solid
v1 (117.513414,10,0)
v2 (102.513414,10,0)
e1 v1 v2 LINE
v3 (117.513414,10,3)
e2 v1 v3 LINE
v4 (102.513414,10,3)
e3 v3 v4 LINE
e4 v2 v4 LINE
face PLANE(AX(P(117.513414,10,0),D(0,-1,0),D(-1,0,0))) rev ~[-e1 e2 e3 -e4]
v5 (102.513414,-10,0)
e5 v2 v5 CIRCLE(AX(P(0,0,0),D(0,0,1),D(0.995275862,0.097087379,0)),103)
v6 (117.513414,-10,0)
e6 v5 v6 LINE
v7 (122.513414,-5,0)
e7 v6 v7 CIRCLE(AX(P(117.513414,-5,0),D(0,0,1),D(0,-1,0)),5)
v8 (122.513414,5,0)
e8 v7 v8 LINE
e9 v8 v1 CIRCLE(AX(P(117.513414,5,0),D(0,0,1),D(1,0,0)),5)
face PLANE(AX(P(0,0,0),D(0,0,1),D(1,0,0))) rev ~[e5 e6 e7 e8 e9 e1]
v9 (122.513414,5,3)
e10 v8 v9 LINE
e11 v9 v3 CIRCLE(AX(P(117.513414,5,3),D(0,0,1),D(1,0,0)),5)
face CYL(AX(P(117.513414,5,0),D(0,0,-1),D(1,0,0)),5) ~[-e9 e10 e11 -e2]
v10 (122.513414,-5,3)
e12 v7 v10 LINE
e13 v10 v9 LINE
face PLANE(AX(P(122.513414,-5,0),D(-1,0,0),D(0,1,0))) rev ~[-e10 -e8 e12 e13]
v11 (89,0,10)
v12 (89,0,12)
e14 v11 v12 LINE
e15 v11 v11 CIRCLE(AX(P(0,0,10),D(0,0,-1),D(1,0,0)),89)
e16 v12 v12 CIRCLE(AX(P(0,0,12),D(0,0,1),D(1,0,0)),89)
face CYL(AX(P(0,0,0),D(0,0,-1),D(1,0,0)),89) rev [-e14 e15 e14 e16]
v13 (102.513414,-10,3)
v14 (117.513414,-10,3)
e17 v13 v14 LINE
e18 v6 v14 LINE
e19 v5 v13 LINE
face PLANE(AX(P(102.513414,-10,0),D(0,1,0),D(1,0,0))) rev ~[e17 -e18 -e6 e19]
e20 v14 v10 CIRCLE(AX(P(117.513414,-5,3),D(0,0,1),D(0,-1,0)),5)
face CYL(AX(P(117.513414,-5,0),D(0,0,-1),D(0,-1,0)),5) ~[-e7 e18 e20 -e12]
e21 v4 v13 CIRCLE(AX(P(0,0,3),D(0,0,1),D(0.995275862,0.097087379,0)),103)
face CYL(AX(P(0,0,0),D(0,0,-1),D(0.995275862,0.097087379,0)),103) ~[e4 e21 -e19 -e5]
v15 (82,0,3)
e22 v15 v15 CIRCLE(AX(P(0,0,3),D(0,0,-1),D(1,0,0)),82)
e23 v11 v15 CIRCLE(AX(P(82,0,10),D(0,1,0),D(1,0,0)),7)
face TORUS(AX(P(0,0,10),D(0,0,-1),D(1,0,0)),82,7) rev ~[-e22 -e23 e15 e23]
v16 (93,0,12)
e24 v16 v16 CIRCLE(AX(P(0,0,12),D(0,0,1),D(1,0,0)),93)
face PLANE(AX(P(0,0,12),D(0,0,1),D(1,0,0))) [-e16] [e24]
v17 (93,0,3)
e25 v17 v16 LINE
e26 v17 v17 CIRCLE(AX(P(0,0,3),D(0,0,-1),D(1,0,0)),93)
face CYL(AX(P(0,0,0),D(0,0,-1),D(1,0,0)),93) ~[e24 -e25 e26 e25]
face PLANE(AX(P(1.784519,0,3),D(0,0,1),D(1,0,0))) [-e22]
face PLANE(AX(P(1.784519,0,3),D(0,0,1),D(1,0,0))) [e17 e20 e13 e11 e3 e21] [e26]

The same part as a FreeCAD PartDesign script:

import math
import FreeCAD as App
import Part
import Sketcher


def edges_at(feature, points):
    """Names of the edges that pass closest to the given points."""
    edges = feature.Shape.Edges
    near = lambda p: min(range(len(edges)), key=lambda i: edges[i].distToShape(Part.Vertex(*p))[0])
    return sorted({f"Edge{near(p) + 1}" for p in points})

doc = App.newDocument("Part")
body = doc.addObject("PartDesign::Body", "Body")

sketch1 = doc.addObject("Sketcher::SketchObject", "Sketch")
body.addObject(sketch1)
sketch1.AttachmentSupport = (doc.XY_Plane, [""])
sketch1.MapMode = "FlatFace"
sketch1.addGeometry(Part.ArcOfCircle(Part.Circle(App.Vector(0, 0, 0), App.Vector(0, 0, 1), 103), math.radians(6), math.radians(354)), False)
sketch1.addGeometry(Part.LineSegment(App.Vector(103, -10, 0), App.Vector(118, -10, 0)), False)
sketch1.addGeometry(Part.ArcOfCircle(Part.Circle(App.Vector(118, -5, 0), App.Vector(0, 0, 1), 5), math.radians(-90), math.radians(0)), False)
sketch1.addGeometry(Part.LineSegment(App.Vector(123, -5, 0), App.Vector(123, 5, 0)), False)
sketch1.addGeometry(Part.ArcOfCircle(Part.Circle(App.Vector(118, 5, 0), App.Vector(0, 0, 1), 5), math.radians(0), math.radians(90)), False)
sketch1.addGeometry(Part.LineSegment(App.Vector(118, 10, 0), App.Vector(103, 10, 0)), False)
sketch1.addConstraint(Sketcher.Constraint("Coincident", 0, 2, 1, 1))
sketch1.addConstraint(Sketcher.Constraint("Tangent", 1, 2, 2, 1))
sketch1.addConstraint(Sketcher.Constraint("Tangent", 2, 2, 3, 1))
sketch1.addConstraint(Sketcher.Constraint("Tangent", 3, 2, 4, 1))
sketch1.addConstraint(Sketcher.Constraint("Tangent", 4, 2, 5, 1))
sketch1.addConstraint(Sketcher.Constraint("Coincident", 5, 2, 0, 1))
sketch1.addConstraint(Sketcher.Constraint("Horizontal", 1))
sketch1.addConstraint(Sketcher.Constraint("Vertical", 3))
sketch1.addConstraint(Sketcher.Constraint("Horizontal", 5))
sketch1.addConstraint(Sketcher.Constraint("Coincident", 0, 3, -1, 1))
sketch1.addConstraint(Sketcher.Constraint("Equal", 2, 4))
sketch1.addConstraint(Sketcher.Constraint("Vertical", 0, 2, 5, 2))
sketch1.addConstraint(Sketcher.Constraint("Radius", 0, 103.0))
sketch1.addConstraint(Sketcher.Constraint("Radius", 2, 5.0))
sketch1.addConstraint(Sketcher.Constraint("DistanceX", 1, 1, 1, 2, 15.0))
sketch1.addConstraint(Sketcher.Constraint("DistanceY", 3, 1, 3, 2, 10.0))
pad1 = doc.addObject("PartDesign::Pad", "Pad")
body.addObject(pad1)
pad1.Profile = sketch1
pad1.Length = 3

sketch2 = doc.addObject("Sketcher::SketchObject", "Sketch001")
body.addObject(sketch2)
sketch2.AttachmentSupport = (doc.XY_Plane, [""])
sketch2.MapMode = "FlatFace"
sketch2.addGeometry(Part.Circle(App.Vector(0, 0, 0), App.Vector(0, 0, 1), 93), False)
sketch2.addGeometry(Part.Circle(App.Vector(0, 0, 0), App.Vector(0, 0, 1), 89), False)
sketch2.addConstraint(Sketcher.Constraint("Coincident", 0, 3, -1, 1))
sketch2.addConstraint(Sketcher.Constraint("Coincident", 1, 3, -1, 1))
sketch2.addConstraint(Sketcher.Constraint("Diameter", 0, 186.0))
sketch2.addConstraint(Sketcher.Constraint("Diameter", 1, 178.0))
pad2 = doc.addObject("PartDesign::Pad", "Pad001")
body.addObject(pad2)
pad2.Profile = sketch2
pad2.Length = 12
doc.recompute()

fillet = doc.addObject("PartDesign::Fillet", "Fillet")
body.addObject(fillet)
fillet.Base = (pad2, edges_at(pad2, [(-89, 0, 3)]))
fillet.Radius = 7

doc.recompute()
